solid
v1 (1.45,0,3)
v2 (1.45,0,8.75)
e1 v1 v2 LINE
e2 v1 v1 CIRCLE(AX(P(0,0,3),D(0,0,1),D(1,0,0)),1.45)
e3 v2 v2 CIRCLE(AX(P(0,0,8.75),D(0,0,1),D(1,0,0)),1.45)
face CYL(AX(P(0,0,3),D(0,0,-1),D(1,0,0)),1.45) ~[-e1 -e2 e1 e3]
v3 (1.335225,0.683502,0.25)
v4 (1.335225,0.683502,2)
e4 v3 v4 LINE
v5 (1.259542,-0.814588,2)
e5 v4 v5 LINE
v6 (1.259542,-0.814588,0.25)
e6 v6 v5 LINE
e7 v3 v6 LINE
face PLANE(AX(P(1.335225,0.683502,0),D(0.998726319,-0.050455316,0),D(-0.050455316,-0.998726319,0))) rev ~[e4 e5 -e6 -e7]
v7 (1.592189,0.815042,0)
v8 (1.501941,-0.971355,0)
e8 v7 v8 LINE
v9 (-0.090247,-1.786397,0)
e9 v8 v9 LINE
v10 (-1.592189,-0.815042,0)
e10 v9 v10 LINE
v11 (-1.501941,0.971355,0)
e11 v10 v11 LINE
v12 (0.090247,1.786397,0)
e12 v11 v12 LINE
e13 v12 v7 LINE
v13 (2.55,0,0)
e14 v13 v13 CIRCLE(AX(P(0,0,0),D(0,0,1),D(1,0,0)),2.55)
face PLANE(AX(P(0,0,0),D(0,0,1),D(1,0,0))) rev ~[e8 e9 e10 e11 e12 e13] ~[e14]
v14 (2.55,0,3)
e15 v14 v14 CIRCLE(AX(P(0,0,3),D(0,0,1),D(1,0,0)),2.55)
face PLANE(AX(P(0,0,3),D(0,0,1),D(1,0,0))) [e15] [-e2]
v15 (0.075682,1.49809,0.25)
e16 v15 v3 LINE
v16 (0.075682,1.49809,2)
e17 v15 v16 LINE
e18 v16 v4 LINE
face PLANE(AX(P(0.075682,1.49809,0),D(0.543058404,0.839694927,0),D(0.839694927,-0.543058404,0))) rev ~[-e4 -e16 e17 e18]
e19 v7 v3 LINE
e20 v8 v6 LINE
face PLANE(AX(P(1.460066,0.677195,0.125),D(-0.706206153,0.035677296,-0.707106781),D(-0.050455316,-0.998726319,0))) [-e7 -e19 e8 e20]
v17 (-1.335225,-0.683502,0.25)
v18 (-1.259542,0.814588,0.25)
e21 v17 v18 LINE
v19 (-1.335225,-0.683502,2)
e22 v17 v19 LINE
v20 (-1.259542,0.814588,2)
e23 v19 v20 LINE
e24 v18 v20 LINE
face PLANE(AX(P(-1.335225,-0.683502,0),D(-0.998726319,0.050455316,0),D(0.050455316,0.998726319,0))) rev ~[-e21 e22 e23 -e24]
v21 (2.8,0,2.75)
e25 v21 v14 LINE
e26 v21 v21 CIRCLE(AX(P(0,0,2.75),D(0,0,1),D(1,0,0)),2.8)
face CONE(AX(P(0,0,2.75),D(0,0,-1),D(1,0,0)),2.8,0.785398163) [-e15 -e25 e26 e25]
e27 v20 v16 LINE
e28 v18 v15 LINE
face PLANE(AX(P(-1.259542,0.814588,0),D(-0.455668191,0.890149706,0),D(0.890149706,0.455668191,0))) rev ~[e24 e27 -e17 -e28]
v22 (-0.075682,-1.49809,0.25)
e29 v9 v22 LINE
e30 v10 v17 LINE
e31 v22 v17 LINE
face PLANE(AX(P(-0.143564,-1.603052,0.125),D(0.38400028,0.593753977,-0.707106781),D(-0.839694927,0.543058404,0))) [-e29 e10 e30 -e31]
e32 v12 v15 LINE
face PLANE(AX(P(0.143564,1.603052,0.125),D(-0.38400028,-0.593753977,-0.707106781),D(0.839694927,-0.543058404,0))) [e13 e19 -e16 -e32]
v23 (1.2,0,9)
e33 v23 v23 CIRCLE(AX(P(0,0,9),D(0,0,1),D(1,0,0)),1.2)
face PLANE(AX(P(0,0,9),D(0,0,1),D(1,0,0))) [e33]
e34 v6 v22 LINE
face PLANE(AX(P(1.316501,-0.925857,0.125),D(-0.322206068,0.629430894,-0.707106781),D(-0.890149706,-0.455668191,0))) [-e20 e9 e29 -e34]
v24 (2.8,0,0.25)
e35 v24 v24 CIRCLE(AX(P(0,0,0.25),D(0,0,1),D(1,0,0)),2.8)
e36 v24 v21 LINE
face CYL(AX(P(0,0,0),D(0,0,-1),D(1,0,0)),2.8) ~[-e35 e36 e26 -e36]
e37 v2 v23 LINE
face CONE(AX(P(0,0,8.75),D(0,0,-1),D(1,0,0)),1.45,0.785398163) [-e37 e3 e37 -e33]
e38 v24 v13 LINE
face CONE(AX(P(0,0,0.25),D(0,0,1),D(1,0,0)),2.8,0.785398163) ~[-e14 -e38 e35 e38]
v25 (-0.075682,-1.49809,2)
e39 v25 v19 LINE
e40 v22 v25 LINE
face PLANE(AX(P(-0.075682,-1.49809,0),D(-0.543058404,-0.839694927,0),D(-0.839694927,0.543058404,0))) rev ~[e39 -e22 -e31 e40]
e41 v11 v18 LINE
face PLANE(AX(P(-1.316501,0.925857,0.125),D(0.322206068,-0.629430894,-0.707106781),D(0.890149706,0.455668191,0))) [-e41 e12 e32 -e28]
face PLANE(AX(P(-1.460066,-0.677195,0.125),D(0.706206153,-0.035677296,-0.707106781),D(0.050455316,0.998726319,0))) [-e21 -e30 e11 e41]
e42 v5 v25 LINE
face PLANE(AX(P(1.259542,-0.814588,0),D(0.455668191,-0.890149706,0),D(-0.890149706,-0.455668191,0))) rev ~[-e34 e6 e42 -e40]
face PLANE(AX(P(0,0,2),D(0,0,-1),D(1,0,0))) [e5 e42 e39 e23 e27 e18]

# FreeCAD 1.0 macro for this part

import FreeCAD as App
import Part
import Sketcher


def edges_at(feature, points):
    """Names of the edges that pass closest to the given points."""
    edges = feature.Shape.Edges
    near = lambda p: min(range(len(edges)), key=lambda i: edges[i].distToShape(Part.Vertex(*p))[0])
    return sorted({f"Edge{near(p) + 1}" for p in points})


def add_polygon(sketch, points):
    """Adds a closed chain of lines whose ends are joined by coincident constraints."""
    first, n = sketch.GeometryCount, len(points)
    for a, b in zip(points, points[1:] + points[:1]):
        sketch.addGeometry(Part.LineSegment(App.Vector(*a, 0), App.Vector(*b, 0)), False)
    for i in range(n):
        sketch.addConstraint(Sketcher.Constraint("Coincident", first + i, 2, first + (i + 1) % n, 1))

doc = App.newDocument("Part")
body = doc.addObject("PartDesign::Body", "Body")

# Sketch on XY plane
sketch1 = doc.addObject("Sketcher::SketchObject", "Sketch")
body.addObject(sketch1)
sketch1.AttachmentSupport = (doc.XY_Plane, [""])
sketch1.MapMode = "FlatFace"
sketch1.addGeometry(Part.Circle(App.Vector(0, 0, 0), App.Vector(0, 0, 1), 2.8), False)
sketch1.addConstraint(Sketcher.Constraint("Coincident", 0, 3, -1, 1))
sketch1.addConstraint(Sketcher.Constraint("Diameter", 0, 5.6))
pad1 = doc.addObject("PartDesign::Pad", "Pad")
body.addObject(pad1)
pad1.Profile = sketch1
pad1.Length = 3

# Sketch on XY plane
sketch2 = doc.addObject("Sketcher::SketchObject", "Sketch001")
body.addObject(sketch2)
sketch2.AttachmentSupport = (doc.XY_Plane, [""])
sketch2.MapMode = "FlatFace"
sketch2.AttachmentOffset = App.Placement(App.Vector(0, 0, 3), App.Rotation())
sketch2.addGeometry(Part.Circle(App.Vector(0, 0, 0), App.Vector(0, 0, 1), 1.45), False)
sketch2.addConstraint(Sketcher.Constraint("Coincident", 0, 3, -1, 1))
sketch2.addConstraint(Sketcher.Constraint("Diameter", 0, 2.9))
pad2 = doc.addObject("PartDesign::Pad", "Pad001")
body.addObject(pad2)
pad2.Profile = sketch2
pad2.Length = 6

# Sketch on XY plane
sketch3 = doc.addObject("Sketcher::SketchObject", "Sketch002")
body.addObject(sketch3)
sketch3.AttachmentSupport = (doc.XY_Plane, [""])
sketch3.MapMode = "FlatFace"
add_polygon(sketch3, [(1.259542, -0.814588), (-0.075682, -1.49809), (-1.335225, -0.683502), (-1.259542, 0.814588), (0.075682, 1.49809), (1.335225, 0.683502)])  # lines 0-5
sketch3.addConstraint(Sketcher.Constraint("Symmetric", 0, 2, 3, 2, -1, 1))
sketch3.addConstraint(Sketcher.Constraint("Symmetric", 1, 2, 4, 2, -1, 1))
sketch3.addConstraint(Sketcher.Constraint("Symmetric", 2, 2, 5, 2, -1, 1))
sketch3.addConstraint(Sketcher.Constraint("Equal", 0, 1))
sketch3.addConstraint(Sketcher.Constraint("Equal", 1, 2))
sketch3.addConstraint(Sketcher.Constraint("Distance", 0, 1.499999))
sketch3.addConstraint(Sketcher.Constraint("DistanceY", 2, 2, 3, 2, 0.683502))
sketch3.addConstraint(Sketcher.Constraint("DistanceY", 0, 2, -1, 1, 1.49809))
sketch3.addConstraint(Sketcher.Constraint("DistanceX", 2, 2, -1, 1, 1.259542))
pocket1 = doc.addObject("PartDesign::Pocket", "Pocket")
body.addObject(pocket1)
pocket1.Profile = sketch3
pocket1.Length = 2
pocket1.Reversed = True
doc.recompute()

chamfer = doc.addObject("PartDesign::Chamfer", "Chamfer")
body.addObject(chamfer)
chamfer.Base = (pocket1, edges_at(pocket1, [
    (-2.8, 0, 3),
    (-2.8, 0, 0),
    (1.297, -0.066, 0),
    (0.705, 1.091, 0),
    (-0.592, 1.156, 0),
    (-1.297, 0.066, 0),
    (-0.705, -1.091, 0),
    (0.592, -1.156, 0),
    (-1.45, 0, 9),
]))
chamfer.Size = 0.25

doc.recompute()
